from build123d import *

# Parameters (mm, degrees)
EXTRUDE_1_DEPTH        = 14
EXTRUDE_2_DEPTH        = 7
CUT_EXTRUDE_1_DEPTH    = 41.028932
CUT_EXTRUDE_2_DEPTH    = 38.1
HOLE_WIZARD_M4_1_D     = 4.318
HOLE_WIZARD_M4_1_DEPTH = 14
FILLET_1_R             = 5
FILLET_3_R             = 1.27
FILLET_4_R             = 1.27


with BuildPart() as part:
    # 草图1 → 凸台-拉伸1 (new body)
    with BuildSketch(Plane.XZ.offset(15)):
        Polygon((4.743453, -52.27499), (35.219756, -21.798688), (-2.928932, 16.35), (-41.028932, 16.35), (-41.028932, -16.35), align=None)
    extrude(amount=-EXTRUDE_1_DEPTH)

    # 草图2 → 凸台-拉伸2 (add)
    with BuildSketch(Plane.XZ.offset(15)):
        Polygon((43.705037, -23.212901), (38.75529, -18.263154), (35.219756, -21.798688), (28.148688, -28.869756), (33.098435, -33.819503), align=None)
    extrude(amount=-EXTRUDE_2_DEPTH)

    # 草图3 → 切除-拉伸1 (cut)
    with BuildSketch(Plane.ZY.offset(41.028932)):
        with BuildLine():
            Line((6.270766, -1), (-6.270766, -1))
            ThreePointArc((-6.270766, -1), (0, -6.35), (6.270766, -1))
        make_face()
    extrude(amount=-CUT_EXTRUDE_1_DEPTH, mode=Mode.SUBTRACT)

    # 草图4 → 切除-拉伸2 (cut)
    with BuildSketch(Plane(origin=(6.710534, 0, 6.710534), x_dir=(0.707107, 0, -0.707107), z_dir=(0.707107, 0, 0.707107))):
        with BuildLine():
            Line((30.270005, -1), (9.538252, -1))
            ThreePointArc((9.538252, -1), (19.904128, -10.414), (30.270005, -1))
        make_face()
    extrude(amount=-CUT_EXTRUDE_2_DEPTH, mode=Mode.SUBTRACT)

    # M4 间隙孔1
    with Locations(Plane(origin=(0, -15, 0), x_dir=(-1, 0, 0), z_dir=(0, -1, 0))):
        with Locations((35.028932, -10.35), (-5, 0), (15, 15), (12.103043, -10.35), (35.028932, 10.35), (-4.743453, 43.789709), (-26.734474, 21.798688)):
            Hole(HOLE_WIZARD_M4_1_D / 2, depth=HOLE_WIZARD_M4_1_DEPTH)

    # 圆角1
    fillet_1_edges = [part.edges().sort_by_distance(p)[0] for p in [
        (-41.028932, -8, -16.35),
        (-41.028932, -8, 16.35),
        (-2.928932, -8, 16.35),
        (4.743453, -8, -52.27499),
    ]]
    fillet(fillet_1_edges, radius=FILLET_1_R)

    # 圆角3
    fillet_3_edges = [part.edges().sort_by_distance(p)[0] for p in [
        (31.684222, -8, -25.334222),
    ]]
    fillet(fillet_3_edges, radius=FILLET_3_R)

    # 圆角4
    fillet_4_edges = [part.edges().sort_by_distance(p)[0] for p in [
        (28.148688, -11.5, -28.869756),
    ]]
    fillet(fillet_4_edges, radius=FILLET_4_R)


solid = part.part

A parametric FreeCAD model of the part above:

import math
import FreeCAD as App
import Part
import Sketcher
from FreeCAD import Vector
Q = App.Units.Quantity


def edges_at(feature, points):
    """Names of the edges that pass closest to the given points."""
    edges = feature.Shape.Edges
    near = lambda p: min(range(len(edges)), key=lambda i: edges[i].distToShape(Part.Vertex(*p))[0])
    return sorted({f"Edge{near(p) + 1}" for p in points})


def add_polygon(sketch, points):
    """Adds a closed chain of lines whose ends are joined by coincident constraints."""
    first, n = sketch.GeometryCount, len(points)
    for a, b in zip(points, points[1:] + points[:1]):
        sketch.addGeometry(Part.LineSegment(App.Vector(*a, 0), App.Vector(*b, 0)), False)
    for i in range(n):
        sketch.addConstraint(Sketcher.Constraint("Coincident", first + i, 2, first + (i + 1) % n, 1))

doc = App.newDocument("Part")
body = doc.addObject("PartDesign::Body", "Body")

# Sketch on XZ plane
sketch1 = doc.addObject("Sketcher::SketchObject", "Sketch")
body.addObject(sketch1)
sketch1.AttachmentSupport = (doc.XZ_Plane, [""])
sketch1.MapMode = "FlatFace"
sketch1.AttachmentOffset = App.Placement(Vector(0, 0, 15), App.Rotation())
add_polygon(sketch1, [(5, -52), (35, -22), (-3, 16), (-41, 16), (-41, -16)])  # lines 0-4
sketch1.addConstraint([
    Sketcher.Constraint("Horizontal", 2),
    Sketcher.Constraint("Vertical", 3),
    Sketcher.Constraint("Perpendicular", 0, 1),
    Sketcher.Constraint("Angle", 0, Q("44.999999 deg")),
    Sketcher.Constraint("DistanceX", 2, 2, 2, 1, Q("38.1 mm")),
    Sketcher.Constraint("DistanceY", 3, 2, 3, 1, Q("32.7 mm")),
    Sketcher.Constraint("Distance", 0, Q("43.1 mm")),
    Sketcher.Constraint("DistanceY", -1, 1, 1, 2, Q("16.35 mm")),
    Sketcher.Constraint("Distance", 1, Q("53.950392 mm")),
    Sketcher.Constraint("DistanceX", 2, 2, -1, 1, Q("41.028932 mm")),
])
pad1 = doc.addObject("PartDesign::Pad", "Pad")
body.addObject(pad1)
pad1.Profile = sketch1
pad1.Length = 14
pad1.Reversed = True

# Sketch on XZ plane
sketch2 = doc.addObject("Sketcher::SketchObject", "Sketch001")
body.addObject(sketch2)
sketch2.AttachmentSupport = (doc.XZ_Plane, [""])
sketch2.MapMode = "FlatFace"
sketch2.AttachmentOffset = App.Placement(Vector(0, 0, 15), App.Rotation())
add_polygon(sketch2, [(44, -23), (39, -18), (28, -29), (33, -34)])  # lines 0-3
sketch2.addConstraint([
    Sketcher.Constraint("Perpendicular", 0, 1),
    Sketcher.Constraint("Perpendicular", 1, 2),
    Sketcher.Constraint("Perpendicular", 2, 3),
    Sketcher.Constraint("Angle", 0, Q("135 deg")),
    Sketcher.Constraint("Distance", 0, Q("6.999999 mm")),
    Sketcher.Constraint("Distance", 1, Q("15 mm")),
    Sketcher.Constraint("DistanceY", 3, 2, -1, 1, Q("23.212901 mm")),
    Sketcher.Constraint("DistanceX", -1, 1, 0, 2, Q("38.75529 mm")),
])
pad2 = doc.addObject("PartDesign::Pad", "Pad001")
body.addObject(pad2)
pad2.Profile = sketch2
pad2.Length = 7
pad2.Reversed = True

# Sketch on YZ plane
sketch3 = doc.addObject("Sketcher::SketchObject", "Sketch002")
body.addObject(sketch3)
sketch3.AttachmentSupport = (doc.YZ_Plane, [""])
sketch3.MapMode = "FlatFace"
sketch3.AttachmentOffset = App.Placement(Vector(0, 0, -41.028932), App.Rotation())
sketch3.addGeometry([
    Part.LineSegment(Vector(-1, 6, 0), Vector(-1, -6, 0)),
    Part.ArcOfCircle(Part.Circle(Vector(0, 0, 0), Vector(0, 0, 1), 6), math.radians(99), math.radians(261)),
], False)
sketch3.addConstraint([
    Sketcher.Constraint("Coincident", 0, 1, 1, 1),
    Sketcher.Constraint("Coincident", 1, 2, 0, 2),
    Sketcher.Constraint("Vertical", 0),
    Sketcher.Constraint("Coincident", 1, 3, -1, 1),
    Sketcher.Constraint("Radius", 1, Q("6.350001 mm")),
    Sketcher.Constraint("DistanceX", 0, 1, -1, 1, Q("1 mm")),
])
pocket1 = doc.addObject("PartDesign::Pocket", "Pocket")
body.addObject(pocket1)
pocket1.Profile = sketch3
pocket1.Length = 41.028932
pocket1.Reversed = True

# Sketch on an angled plane
sketch4 = doc.addObject("Sketcher::SketchObject", "Sketch003")
body.addObject(sketch4)
sketch4.Placement = App.Placement(Vector(6.710534, 0, 6.710534), App.Rotation(Vector(0.707106781, 0, -0.707106781), Vector(0, 0.999999999, 0), Vector(0.707106781, 0, 0.707106781), "ZXY"))
sketch4.addGeometry([
    Part.LineSegment(Vector(30, -1, 0), Vector(10, -1, 0)),
    Part.ArcOfCircle(Part.Circle(Vector(20, 0, 0), Vector(0, 0, 1), 10), math.radians(-174), math.radians(-6)),
], False)
sketch4.addConstraint([
    Sketcher.Constraint("Coincident", 0, 1, 1, 2),
    Sketcher.Constraint("Coincident", 1, 1, 0, 2),
    Sketcher.Constraint("Horizontal", 0),
    Sketcher.Constraint("PointOnObject", 1, 3, -1),
    Sketcher.Constraint("DistanceY", 0, 1, -1, 1, Q("1 mm")),
    Sketcher.Constraint("Radius", 1, Q("10.414 mm")),
    Sketcher.Constraint("DistanceX", -1, 1, 1, 3, Q("19.904128 mm")),
])
pocket2 = doc.addObject("PartDesign::Pocket", "Pocket001")
body.addObject(pocket2)
pocket2.Profile = sketch4
pocket2.Length = 38.1

# Sketch on XZ plane
sketch5 = doc.addObject("Sketcher::SketchObject", "Sketch004")
body.addObject(sketch5)
sketch5.AttachmentSupport = (doc.XZ_Plane, [""])
sketch5.MapMode = "FlatFace"
sketch5.AttachmentOffset = App.Placement(Vector(0, 0, 15), App.Rotation())
sketch5.addGeometry([
    Part.Circle(Vector(-35, 10.3, 0), Vector(0, 0, 1), 2.2),  # 0
    Part.Circle(Vector(5, 0, 0), Vector(0, 0, 1), 2.2),  # 1
    Part.Circle(Vector(-15, -15, 0), Vector(0, 0, 1), 2.2),  # 2
    Part.Circle(Vector(-12.1, 10.3, 0), Vector(0, 0, 1), 2.2),  # 3
    Part.Circle(Vector(-35, -10.3, 0), Vector(0, 0, 1), 2.2),  # 4
    Part.Circle(Vector(4.7, -43.8, 0), Vector(0, 0, 1), 2.2),  # 5
    Part.Circle(Vector(26.7, -21.8, 0), Vector(0, 0, 1), 2.2),  # 6
], False)
sketch5.addConstraint([
    Sketcher.Constraint("Equal", 0, 1),
    Sketcher.Constraint("Equal", 1, 2),
    Sketcher.Constraint("Equal", 2, 3),
    Sketcher.Constraint("Equal", 3, 4),
    Sketcher.Constraint("Equal", 4, 5),
    Sketcher.Constraint("Equal", 5, 6),
    Sketcher.Constraint("Symmetric", 0, 3, 4, 3, -1),
    Sketcher.Constraint("PointOnObject", 1, 3, -1),
    Sketcher.Constraint("Horizontal", 0, 3, 3, 3),
    Sketcher.Constraint("Diameter", 0, Q("4.318 mm")),
    Sketcher.Constraint("DistanceX", -1, 1, 1, 3, Q("5 mm")),
    Sketcher.Constraint("DistanceX", 2, 3, -1, 1, Q("15 mm")),
    Sketcher.Constraint("DistanceY", 2, 3, -1, 1, Q("15 mm")),
    Sketcher.Constraint("DistanceY", 4, 3, 0, 3, Q("20.7 mm")),
    Sketcher.Constraint("DistanceX", 0, 3, -1, 1, Q("35.028932 mm")),
    Sketcher.Constraint("DistanceY", 5, 3, -1, 1, Q("43.789709 mm")),
    Sketcher.Constraint("DistanceX", 0, 3, 3, 3, Q("22.925889 mm")),
    Sketcher.Constraint("DistanceX", 5, 3, 6, 3, Q("21.991021 mm")),
    Sketcher.Constraint("DistanceY", 5, 3, 6, 3, Q("21.991021 mm")),
    Sketcher.Constraint("DistanceX", -1, 1, 5, 3, Q("4.743453 mm")),
])
doc.recompute()
hole = doc.addObject("PartDesign::Hole", "Hole")
body.addObject(hole)
hole.Profile = sketch5
hole.ThreadType = "None"
hole.Diameter = 4.318
hole.DepthType = "Dimension"
hole.Depth = 14
hole.DrillPoint = "Flat"
doc.recompute()

fillet = doc.addObject("PartDesign::Fillet", "Fillet")
body.addObject(fillet)
fillet.Base = (hole, edges_at(hole, [
    (-41.029, -8, -16.35),
    (-41.029, -8, 16.35),
    (-2.929, -8, 16.35),
    (4.743, -8, -52.275),
]))
fillet.Radius = 5
doc.recompute()

fillet2 = doc.addObject("PartDesign::Fillet", "Fillet001")
body.addObject(fillet2)
fillet2.Base = (fillet, edges_at(fillet, [(31.684, -8, -25.334)]))
fillet2.Radius = 1.27
doc.recompute()

fillet3 = doc.addObject("PartDesign::Fillet", "Fillet002")
body.addObject(fillet3)
fillet3.Base = (fillet2, edges_at(fillet2, [(28.149, -11.5, -28.87)]))
fillet3.Radius = 1.27

doc.recompute()
